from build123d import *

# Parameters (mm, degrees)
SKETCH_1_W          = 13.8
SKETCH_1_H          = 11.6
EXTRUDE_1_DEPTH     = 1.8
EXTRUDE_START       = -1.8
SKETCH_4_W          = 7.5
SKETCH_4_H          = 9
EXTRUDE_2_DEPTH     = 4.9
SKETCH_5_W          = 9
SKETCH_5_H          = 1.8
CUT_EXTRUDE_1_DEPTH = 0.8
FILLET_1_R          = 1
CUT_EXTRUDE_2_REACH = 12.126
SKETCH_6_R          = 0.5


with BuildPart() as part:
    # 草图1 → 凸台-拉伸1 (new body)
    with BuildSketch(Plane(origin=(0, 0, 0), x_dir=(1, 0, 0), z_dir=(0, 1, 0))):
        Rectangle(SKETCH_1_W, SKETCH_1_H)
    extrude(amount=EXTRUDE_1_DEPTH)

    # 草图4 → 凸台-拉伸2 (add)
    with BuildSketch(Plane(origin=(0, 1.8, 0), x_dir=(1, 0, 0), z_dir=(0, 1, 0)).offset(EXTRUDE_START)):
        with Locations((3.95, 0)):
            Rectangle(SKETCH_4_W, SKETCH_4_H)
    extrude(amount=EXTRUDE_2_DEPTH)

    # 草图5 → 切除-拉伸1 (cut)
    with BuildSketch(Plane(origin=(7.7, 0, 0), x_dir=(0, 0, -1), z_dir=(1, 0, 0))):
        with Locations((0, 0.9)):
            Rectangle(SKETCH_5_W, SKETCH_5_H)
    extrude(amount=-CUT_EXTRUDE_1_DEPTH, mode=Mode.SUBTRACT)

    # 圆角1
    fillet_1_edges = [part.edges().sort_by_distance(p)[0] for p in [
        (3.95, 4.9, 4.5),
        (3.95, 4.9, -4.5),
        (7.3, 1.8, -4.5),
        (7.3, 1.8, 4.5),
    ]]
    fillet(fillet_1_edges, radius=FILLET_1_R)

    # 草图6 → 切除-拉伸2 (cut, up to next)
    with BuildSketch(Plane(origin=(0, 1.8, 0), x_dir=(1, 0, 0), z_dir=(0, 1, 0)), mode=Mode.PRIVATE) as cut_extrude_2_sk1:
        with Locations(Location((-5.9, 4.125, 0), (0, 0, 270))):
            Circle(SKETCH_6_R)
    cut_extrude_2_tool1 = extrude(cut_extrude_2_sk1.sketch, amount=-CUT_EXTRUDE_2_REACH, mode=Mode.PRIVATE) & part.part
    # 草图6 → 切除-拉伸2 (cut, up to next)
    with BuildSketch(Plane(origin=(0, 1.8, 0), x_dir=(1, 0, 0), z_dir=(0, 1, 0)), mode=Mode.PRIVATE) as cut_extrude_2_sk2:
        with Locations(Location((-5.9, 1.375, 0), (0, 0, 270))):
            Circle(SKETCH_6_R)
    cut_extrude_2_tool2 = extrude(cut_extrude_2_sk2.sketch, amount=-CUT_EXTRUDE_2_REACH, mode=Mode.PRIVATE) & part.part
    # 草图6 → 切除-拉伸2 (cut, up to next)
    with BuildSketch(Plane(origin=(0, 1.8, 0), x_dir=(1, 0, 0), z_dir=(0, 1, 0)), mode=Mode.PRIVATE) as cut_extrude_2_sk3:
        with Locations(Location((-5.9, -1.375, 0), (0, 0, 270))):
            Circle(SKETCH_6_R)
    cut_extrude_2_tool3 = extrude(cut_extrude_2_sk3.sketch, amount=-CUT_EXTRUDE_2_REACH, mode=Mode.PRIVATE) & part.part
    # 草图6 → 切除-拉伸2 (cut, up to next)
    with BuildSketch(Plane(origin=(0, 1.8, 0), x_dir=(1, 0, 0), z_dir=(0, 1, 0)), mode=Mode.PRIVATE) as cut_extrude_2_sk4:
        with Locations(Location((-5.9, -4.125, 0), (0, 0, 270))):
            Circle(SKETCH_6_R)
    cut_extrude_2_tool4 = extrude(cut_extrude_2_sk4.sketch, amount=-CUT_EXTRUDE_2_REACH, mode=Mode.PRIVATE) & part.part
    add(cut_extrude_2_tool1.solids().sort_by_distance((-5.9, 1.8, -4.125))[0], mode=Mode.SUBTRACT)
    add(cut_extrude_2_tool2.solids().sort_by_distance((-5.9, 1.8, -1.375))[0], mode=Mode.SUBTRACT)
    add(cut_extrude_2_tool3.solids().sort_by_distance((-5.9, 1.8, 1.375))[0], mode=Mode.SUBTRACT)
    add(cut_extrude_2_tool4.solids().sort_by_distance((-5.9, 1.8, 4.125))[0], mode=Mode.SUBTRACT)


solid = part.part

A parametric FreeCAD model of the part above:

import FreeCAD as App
import Part
import Sketcher
from FreeCAD import Vector


def edges_at(feature, points):
    """Names of the edges that pass closest to the given points."""
    edges = feature.Shape.Edges
    near = lambda p: min(range(len(edges)), key=lambda i: edges[i].distToShape(Part.Vertex(*p))[0])
    return sorted({f"Edge{near(p) + 1}" for p in points})

doc = App.newDocument("Part")
body = doc.addObject("PartDesign::Body", "Body")

sketch1 = doc.addObject("Sketcher::SketchObject", "Sketch")
body.addObject(sketch1)
sketch1.AttachmentSupport = (doc.XZ_Plane, [""])
sketch1.MapMode = "FlatFace"
sketch1.addGeometry([
    Part.LineSegment(Vector(-7, -6, 0), Vector(-7, 6, 0)),
    Part.LineSegment(Vector(-7, 6, 0), Vector(7, 6, 0)),
    Part.LineSegment(Vector(7, 6, 0), Vector(7, -6, 0)),
    Part.LineSegment(Vector(7, -6, 0), Vector(-7, -6, 0)),
], False)
sketch1.addConstraint([
    Sketcher.Constraint("Coincident", 0, 2, 1, 1),
    Sketcher.Constraint("Coincident", 1, 2, 2, 1),
    Sketcher.Constraint("Coincident", 2, 2, 3, 1),
    Sketcher.Constraint("Coincident", 3, 2, 0, 1),
    Sketcher.Constraint("Vertical", 0),
    Sketcher.Constraint("Horizontal", 1),
    Sketcher.Constraint("Vertical", 2),
    Sketcher.Constraint("Horizontal", 3),
    Sketcher.Constraint("Symmetric", 0, 2, 2, 2, -1, 1),
    Sketcher.Constraint("DistanceX", 1, 1, 1, 2, 13.8),
    Sketcher.Constraint("DistanceY", 0, 1, 0, 2, 11.6),
])
pad1 = doc.addObject("PartDesign::Pad", "Pad")
body.addObject(pad1)
pad1.Profile = sketch1
pad1.Length = 1.8
pad1.Reversed = True

sketch2 = doc.addObject("Sketcher::SketchObject", "Sketch001")
body.addObject(sketch2)
sketch2.AttachmentSupport = (doc.XZ_Plane, [""])
sketch2.MapMode = "FlatFace"
sketch2.addGeometry([
    Part.LineSegment(Vector(0, -4, 0), Vector(0, 4, 0)),
    Part.LineSegment(Vector(0, 4, 0), Vector(8, 4, 0)),
    Part.LineSegment(Vector(8, 4, 0), Vector(8, -4, 0)),
    Part.LineSegment(Vector(8, -4, 0), Vector(0, -4, 0)),
], False)
sketch2.addConstraint([
    Sketcher.Constraint("Coincident", 0, 2, 1, 1),
    Sketcher.Constraint("Coincident", 1, 2, 2, 1),
    Sketcher.Constraint("Coincident", 2, 2, 3, 1),
    Sketcher.Constraint("Coincident", 3, 2, 0, 1),
    Sketcher.Constraint("Vertical", 0),
    Sketcher.Constraint("Horizontal", 1),
    Sketcher.Constraint("Vertical", 2),
    Sketcher.Constraint("Horizontal", 3),
    Sketcher.Constraint("DistanceY", 0, 1, 0, 2, 9.0),
    Sketcher.Constraint("DistanceX", 1, 1, 1, 2, 7.5),
    Sketcher.Constraint("DistanceX", -1, 1, 0, 2, 0.2),
    Sketcher.Constraint("DistanceY", -1, 1, 0, 2, 4.5),
])
pad2 = doc.addObject("PartDesign::Pad", "Pad001")
body.addObject(pad2)
pad2.Profile = sketch2
pad2.Length = 4.9
pad2.Reversed = True

sketch3 = doc.addObject("Sketcher::SketchObject", "Sketch002")
body.addObject(sketch3)
sketch3.AttachmentSupport = (doc.YZ_Plane, [""])
sketch3.MapMode = "FlatFace"
sketch3.AttachmentOffset = App.Placement(Vector(0, 0, 7.7), App.Rotation())
sketch3.addGeometry([
    Part.LineSegment(Vector(1.8, 4.5, 0), Vector(0, 4.5, 0)),
    Part.LineSegment(Vector(0, 4.5, 0), Vector(0, -4.5, 0)),
    Part.LineSegment(Vector(0, -4.5, 0), Vector(1.8, -4.5, 0)),
    Part.LineSegment(Vector(1.8, -4.5, 0), Vector(1.8, 4.5, 0)),
], False)
sketch3.addConstraint([
    Sketcher.Constraint("Coincident", 0, 2, 1, 1),
    Sketcher.Constraint("Coincident", 1, 2, 2, 1),
    Sketcher.Constraint("Coincident", 2, 2, 3, 1),
    Sketcher.Constraint("Coincident", 3, 2, 0, 1),
    Sketcher.Constraint("Horizontal", 0),
    Sketcher.Constraint("Vertical", 1),
    Sketcher.Constraint("Horizontal", 2),
    Sketcher.Constraint("Vertical", 3),
    Sketcher.Constraint("Symmetric", 0, 2, 1, 2, -1, 1),
    Sketcher.Constraint("DistanceY", 1, 2, 1, 1, 9.0),
    Sketcher.Constraint("DistanceX", 0, 2, 0, 1, 1.8),
])
pocket1 = doc.addObject("PartDesign::Pocket", "Pocket")
body.addObject(pocket1)
pocket1.Profile = sketch3
pocket1.Length = 0.8
doc.recompute()

fillet = doc.addObject("PartDesign::Fillet", "Fillet")
body.addObject(fillet)
fillet.Base = (pocket1, edges_at(pocket1, [
    (3.95, 4.9, 4.5),
    (3.95, 4.9, -4.5),
    (7.3, 1.8, -4.5),
    (7.3, 1.8, 4.5),
]))
fillet.Radius = 1

sketch4 = doc.addObject("Sketcher::SketchObject", "Sketch003")
body.addObject(sketch4)
sketch4.AttachmentSupport = (doc.XZ_Plane, [""])
sketch4.MapMode = "FlatFace"
sketch4.AttachmentOffset = App.Placement(Vector(0, 0, -1.8), App.Rotation())
sketch4.addGeometry(Part.Circle(Vector(-5.9, -4.1, 0), Vector(0, 0, 1), 0.5), False)
sketch4.addConstraint([
    Sketcher.Constraint("Diameter", 0, 1.0),
    Sketcher.Constraint("DistanceX", 0, 3, -1, 1, 5.9),
    Sketcher.Constraint("DistanceY", 0, 3, -1, 1, 4.125),
])
pocket2 = doc.addObject("PartDesign::Pocket", "Pocket001")
body.addObject(pocket2)
pocket2.Profile = sketch4
pocket2.Type = "UpToFirst"
pocket2.Reversed = True

sketch5 = doc.addObject("Sketcher::SketchObject", "Sketch004")
body.addObject(sketch5)
sketch5.AttachmentSupport = (doc.XZ_Plane, [""])
sketch5.MapMode = "FlatFace"
sketch5.AttachmentOffset = App.Placement(Vector(0, 0, -1.8), App.Rotation())
sketch5.addGeometry(Part.Circle(Vector(-5.9, -1.4, 0), Vector(0, 0, 1), 0.5), False)
sketch5.addConstraint([
    Sketcher.Constraint("Diameter", 0, 1.0),
    Sketcher.Constraint("DistanceX", 0, 3, -1, 1, 5.9),
    Sketcher.Constraint("DistanceY", 0, 3, -1, 1, 1.375),
])
pocket3 = doc.addObject("PartDesign::Pocket", "Pocket002")
body.addObject(pocket3)
pocket3.Profile = sketch5
pocket3.Type = "UpToFirst"
pocket3.Reversed = True

sketch6 = doc.addObject("Sketcher::SketchObject", "Sketch005")
body.addObject(sketch6)
sketch6.AttachmentSupport = (doc.XZ_Plane, [""])
sketch6.MapMode = "FlatFace"
sketch6.AttachmentOffset = App.Placement(Vector(0, 0, -1.8), App.Rotation())
sketch6.addGeometry(Part.Circle(Vector(-5.9, 1.4, 0), Vector(0, 0, 1), 0.5), False)
sketch6.addConstraint([
    Sketcher.Constraint("Diameter", 0, 1.0),
    Sketcher.Constraint("DistanceX", 0, 3, -1, 1, 5.9),
    Sketcher.Constraint("DistanceY", -1, 1, 0, 3, 1.375),
])
pocket4 = doc.addObject("PartDesign::Pocket", "Pocket003")
body.addObject(pocket4)
pocket4.Profile = sketch6
pocket4.Type = "UpToFirst"
pocket4.Reversed = True

sketch7 = doc.addObject("Sketcher::SketchObject", "Sketch006")
body.addObject(sketch7)
sketch7.AttachmentSupport = (doc.XZ_Plane, [""])
sketch7.MapMode = "FlatFace"
sketch7.AttachmentOffset = App.Placement(Vector(0, 0, -1.8), App.Rotation())
sketch7.addGeometry(Part.Circle(Vector(-5.9, 4.1, 0), Vector(0, 0, 1), 0.5), False)
sketch7.addConstraint([
    Sketcher.Constraint("Diameter", 0, 1.0),
    Sketcher.Constraint("DistanceX", 0, 3, -1, 1, 5.9),
    Sketcher.Constraint("DistanceY", -1, 1, 0, 3, 4.125),
])
pocket5 = doc.addObject("PartDesign::Pocket", "Pocket004")
body.addObject(pocket5)
pocket5.Profile = sketch7
pocket5.Type = "UpToFirst"
pocket5.Reversed = True

doc.recompute()
